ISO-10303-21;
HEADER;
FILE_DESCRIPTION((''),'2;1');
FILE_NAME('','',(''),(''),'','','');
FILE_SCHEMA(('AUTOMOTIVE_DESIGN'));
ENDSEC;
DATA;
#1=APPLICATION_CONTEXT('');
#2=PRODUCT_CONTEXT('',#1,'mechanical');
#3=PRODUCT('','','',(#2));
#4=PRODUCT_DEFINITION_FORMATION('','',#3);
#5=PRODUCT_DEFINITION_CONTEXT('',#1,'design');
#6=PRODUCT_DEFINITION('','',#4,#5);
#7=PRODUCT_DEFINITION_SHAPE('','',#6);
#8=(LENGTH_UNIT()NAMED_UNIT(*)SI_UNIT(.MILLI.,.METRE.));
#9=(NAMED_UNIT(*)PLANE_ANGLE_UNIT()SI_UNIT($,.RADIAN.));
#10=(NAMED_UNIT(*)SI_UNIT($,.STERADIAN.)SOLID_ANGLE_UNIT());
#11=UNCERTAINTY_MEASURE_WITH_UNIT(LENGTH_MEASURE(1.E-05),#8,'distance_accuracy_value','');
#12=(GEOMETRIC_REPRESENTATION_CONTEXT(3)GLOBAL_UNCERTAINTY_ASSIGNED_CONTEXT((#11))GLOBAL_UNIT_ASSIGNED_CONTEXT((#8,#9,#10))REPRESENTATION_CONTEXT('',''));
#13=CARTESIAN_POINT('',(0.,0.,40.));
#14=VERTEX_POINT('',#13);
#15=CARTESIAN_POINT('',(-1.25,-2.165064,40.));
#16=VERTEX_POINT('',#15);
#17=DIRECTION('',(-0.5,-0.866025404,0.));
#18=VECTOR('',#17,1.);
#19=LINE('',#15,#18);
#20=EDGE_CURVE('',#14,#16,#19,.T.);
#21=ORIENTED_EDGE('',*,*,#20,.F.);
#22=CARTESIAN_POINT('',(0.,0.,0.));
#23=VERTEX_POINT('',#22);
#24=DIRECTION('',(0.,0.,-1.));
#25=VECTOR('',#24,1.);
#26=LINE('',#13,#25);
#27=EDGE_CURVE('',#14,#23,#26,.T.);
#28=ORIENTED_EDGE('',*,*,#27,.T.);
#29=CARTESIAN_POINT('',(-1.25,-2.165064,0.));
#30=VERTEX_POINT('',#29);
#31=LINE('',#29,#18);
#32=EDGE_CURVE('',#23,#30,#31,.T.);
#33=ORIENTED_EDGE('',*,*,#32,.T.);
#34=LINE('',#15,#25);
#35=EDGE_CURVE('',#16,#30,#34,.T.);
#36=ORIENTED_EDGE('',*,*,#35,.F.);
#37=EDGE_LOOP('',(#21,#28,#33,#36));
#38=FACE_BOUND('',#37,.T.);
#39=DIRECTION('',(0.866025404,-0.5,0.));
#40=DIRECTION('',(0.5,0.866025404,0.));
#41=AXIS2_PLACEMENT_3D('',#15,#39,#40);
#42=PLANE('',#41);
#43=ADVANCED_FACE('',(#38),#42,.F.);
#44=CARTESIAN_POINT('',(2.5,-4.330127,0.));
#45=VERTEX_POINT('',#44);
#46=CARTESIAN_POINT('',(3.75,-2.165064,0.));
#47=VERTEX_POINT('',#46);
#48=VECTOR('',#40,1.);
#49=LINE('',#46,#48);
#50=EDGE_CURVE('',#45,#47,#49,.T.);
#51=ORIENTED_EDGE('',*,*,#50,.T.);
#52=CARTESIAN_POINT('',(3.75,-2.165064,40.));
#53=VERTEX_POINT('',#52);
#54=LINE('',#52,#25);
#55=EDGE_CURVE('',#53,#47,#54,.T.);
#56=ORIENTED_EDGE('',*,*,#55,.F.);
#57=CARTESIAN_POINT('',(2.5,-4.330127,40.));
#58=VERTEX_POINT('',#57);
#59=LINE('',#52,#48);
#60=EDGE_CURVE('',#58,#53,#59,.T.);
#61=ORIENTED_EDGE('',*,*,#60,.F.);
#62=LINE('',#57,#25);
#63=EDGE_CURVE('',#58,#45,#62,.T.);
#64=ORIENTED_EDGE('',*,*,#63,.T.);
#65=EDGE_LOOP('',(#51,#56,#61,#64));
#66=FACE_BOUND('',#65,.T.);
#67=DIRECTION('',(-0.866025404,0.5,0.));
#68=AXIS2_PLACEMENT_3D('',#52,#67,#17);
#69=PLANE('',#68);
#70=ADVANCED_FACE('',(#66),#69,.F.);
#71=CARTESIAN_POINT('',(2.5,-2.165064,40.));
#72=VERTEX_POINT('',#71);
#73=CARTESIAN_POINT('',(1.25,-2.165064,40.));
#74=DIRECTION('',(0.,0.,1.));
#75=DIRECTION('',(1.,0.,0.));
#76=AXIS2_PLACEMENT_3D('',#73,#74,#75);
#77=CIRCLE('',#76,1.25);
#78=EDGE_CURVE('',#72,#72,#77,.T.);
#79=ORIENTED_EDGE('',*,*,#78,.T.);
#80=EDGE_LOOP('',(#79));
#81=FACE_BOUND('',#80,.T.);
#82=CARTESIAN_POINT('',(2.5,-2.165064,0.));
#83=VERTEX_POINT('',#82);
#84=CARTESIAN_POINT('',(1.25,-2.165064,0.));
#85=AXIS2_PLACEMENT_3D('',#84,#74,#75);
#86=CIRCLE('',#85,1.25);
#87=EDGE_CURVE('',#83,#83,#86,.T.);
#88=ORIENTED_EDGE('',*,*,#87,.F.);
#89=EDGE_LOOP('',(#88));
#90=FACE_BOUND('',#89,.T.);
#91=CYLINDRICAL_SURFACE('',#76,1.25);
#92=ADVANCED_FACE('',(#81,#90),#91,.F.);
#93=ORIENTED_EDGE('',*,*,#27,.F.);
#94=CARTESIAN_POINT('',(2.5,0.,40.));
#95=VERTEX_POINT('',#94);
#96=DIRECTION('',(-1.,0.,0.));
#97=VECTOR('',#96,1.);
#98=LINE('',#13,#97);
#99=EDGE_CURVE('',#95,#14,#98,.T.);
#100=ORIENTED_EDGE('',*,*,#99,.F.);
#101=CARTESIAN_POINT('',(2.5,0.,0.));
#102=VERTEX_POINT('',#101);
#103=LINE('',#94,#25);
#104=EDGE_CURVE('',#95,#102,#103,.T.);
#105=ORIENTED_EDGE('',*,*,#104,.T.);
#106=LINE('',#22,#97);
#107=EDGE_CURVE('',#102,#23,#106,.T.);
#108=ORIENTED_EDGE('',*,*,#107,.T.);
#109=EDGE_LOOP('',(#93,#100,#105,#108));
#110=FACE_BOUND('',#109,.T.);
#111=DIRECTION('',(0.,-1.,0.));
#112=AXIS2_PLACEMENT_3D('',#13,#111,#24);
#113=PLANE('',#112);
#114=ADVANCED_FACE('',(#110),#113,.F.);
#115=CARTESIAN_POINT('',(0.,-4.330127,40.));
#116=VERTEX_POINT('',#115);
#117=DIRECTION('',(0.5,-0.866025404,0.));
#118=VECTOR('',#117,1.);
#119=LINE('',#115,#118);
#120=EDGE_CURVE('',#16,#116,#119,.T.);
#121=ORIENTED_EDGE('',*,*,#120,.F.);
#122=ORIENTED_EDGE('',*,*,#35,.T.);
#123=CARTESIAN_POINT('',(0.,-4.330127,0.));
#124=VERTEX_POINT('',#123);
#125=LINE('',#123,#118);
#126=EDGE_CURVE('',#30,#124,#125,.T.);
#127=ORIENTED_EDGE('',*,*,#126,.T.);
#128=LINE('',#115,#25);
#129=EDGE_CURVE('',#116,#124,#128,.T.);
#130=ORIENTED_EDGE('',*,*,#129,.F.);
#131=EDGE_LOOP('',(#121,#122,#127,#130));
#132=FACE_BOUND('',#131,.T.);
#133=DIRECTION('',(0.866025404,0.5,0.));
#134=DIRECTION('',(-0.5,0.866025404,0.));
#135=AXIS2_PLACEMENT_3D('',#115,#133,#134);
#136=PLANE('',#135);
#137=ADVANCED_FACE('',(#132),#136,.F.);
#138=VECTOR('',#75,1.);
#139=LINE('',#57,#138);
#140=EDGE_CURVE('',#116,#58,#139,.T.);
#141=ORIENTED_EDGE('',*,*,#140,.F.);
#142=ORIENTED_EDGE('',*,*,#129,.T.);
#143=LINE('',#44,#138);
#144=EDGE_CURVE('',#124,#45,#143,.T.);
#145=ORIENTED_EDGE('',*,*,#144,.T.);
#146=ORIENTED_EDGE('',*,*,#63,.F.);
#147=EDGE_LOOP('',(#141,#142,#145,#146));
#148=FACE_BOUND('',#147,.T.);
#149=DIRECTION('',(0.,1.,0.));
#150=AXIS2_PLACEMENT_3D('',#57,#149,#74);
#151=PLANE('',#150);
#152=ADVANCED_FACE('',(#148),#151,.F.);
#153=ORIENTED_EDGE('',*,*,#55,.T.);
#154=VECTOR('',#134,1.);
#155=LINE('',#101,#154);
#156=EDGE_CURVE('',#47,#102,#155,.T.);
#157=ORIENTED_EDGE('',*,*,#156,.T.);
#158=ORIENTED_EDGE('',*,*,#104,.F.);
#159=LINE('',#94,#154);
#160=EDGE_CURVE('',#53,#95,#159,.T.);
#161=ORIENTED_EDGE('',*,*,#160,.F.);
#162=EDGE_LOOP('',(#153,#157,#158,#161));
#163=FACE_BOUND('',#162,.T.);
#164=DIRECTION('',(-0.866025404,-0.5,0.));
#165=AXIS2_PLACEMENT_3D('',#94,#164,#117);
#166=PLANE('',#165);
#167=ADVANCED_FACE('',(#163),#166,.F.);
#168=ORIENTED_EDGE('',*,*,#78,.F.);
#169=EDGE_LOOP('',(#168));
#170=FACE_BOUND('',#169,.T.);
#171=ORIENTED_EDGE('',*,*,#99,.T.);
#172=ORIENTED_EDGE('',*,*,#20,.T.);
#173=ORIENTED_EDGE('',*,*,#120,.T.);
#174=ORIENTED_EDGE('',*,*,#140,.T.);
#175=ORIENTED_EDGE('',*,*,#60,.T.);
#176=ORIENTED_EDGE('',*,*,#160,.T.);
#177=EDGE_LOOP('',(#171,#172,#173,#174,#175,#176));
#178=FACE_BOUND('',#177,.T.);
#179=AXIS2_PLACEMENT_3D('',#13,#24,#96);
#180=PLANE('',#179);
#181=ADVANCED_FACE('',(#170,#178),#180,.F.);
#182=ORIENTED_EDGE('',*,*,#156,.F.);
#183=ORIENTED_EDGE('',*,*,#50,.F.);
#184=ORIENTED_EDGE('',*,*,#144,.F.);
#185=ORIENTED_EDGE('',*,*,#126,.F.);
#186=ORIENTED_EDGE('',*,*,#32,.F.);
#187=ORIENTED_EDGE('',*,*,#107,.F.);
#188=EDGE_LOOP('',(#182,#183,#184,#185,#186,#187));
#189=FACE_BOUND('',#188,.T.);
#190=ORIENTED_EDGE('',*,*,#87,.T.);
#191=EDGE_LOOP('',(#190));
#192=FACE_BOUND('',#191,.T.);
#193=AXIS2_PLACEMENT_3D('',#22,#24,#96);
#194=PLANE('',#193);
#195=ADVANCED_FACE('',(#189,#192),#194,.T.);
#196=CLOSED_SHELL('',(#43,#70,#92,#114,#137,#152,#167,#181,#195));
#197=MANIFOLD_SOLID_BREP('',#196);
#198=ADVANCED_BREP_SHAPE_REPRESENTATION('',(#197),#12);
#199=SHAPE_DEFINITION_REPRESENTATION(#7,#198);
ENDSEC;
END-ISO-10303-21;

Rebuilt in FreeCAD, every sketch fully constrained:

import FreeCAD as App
import Part
import Sketcher

V = App.Vector
Q = App.Units.Quantity

doc = App.newDocument("Part")
body = doc.addObject("PartDesign::Body", "Body")

sketch1 = body.newObject("Sketcher::SketchObject", "Sketch")
sketch1.AttachmentSupport = (doc.getObject("XY_Plane"), [""])
sketch1.MapMode = "FlatFace"
sketch1.addGeometry([
    Part.LineSegment(V(2.5, 0, 0), V(0, 0, 0)),
    Part.LineSegment(V(0, 0, 0), V(-1.2, -2.2, 0)),
    Part.LineSegment(V(-1.2, -2.2, 0), V(0, -4.3, 0)),
    Part.LineSegment(V(0, -4.3, 0), V(2.5, -4.3, 0)),
    Part.LineSegment(V(2.5, -4.3, 0), V(3.8, -2.2, 0)),
    Part.LineSegment(V(3.8, -2.2, 0), V(2.5, 0, 0)),
], False)
sketch1.addConstraint([
    Sketcher.Constraint("Coincident", 0, 2, 1, 1),
    Sketcher.Constraint("Coincident", 1, 2, 2, 1),
    Sketcher.Constraint("Coincident", 2, 2, 3, 1),
    Sketcher.Constraint("Coincident", 3, 2, 4, 1),
    Sketcher.Constraint("Coincident", 4, 2, 5, 1),
    Sketcher.Constraint("Coincident", 5, 2, 0, 1),
    Sketcher.Constraint("Horizontal", 0),
    Sketcher.Constraint("Horizontal", 3),
    Sketcher.Constraint("Coincident", 0, 2, -1, 1),
    Sketcher.Constraint("PointOnObject", 2, 2, -2),
    Sketcher.Constraint("Parallel", 1, 4),
    Sketcher.Constraint("Parallel", 2, 5),
    Sketcher.Constraint("Horizontal", 1, 2, 4, 2),
    Sketcher.Constraint("Vertical", 3, 2, 5, 2),
    Sketcher.Constraint("Angle", 1, Q("-120 deg")),
    Sketcher.Constraint("DistanceX", 0, 2, 0, 1, Q("2.5 mm")),
    Sketcher.Constraint("DistanceX", 1, 2, 4, 2, Q("5 mm")),
])
pad1 = body.newObject("PartDesign::Pad", "Pad")
pad1.Profile = sketch1
pad1.Length = 40

sketch2 = body.newObject("Sketcher::SketchObject", "Sketch001")
sketch2.AttachmentSupport = (doc.getObject("XY_Plane"), [""])
sketch2.MapMode = "FlatFace"
sketch2.AttachmentOffset = App.Placement(V(0, 0, 40), App.Rotation())
sketch2.addGeometry(Part.Circle(V(1.2, -2.2, 0), V(0, 0, 1), 1.2), False)
sketch2.addConstraint([
    Sketcher.Constraint("Diameter", 0, Q("2.5 mm")),
    Sketcher.Constraint("DistanceX", -1, 1, 0, 3, Q("1.25 mm")),
    Sketcher.Constraint("DistanceY", 0, 3, -1, 1, Q("2.165064 mm")),
])
doc.recompute()
hole = body.newObject("PartDesign::Hole", "Hole")
hole.Profile = sketch2
hole.ThreadType = "None"
hole.Diameter = 2.5
hole.DepthType = "ThroughAll"

doc.recompute()
